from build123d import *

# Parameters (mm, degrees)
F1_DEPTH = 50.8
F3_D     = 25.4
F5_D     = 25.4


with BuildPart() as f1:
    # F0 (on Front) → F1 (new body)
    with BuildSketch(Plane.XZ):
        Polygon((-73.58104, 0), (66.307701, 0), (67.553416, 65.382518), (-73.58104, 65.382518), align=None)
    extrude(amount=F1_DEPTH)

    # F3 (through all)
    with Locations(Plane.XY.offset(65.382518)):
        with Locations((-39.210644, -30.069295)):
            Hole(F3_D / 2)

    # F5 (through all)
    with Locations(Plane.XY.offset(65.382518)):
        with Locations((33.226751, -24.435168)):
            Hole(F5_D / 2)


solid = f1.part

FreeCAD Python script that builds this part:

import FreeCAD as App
import Part
import Sketcher
Q = App.Units.Quantity


def add_polygon(sketch, points):
    """Adds a closed chain of lines whose ends are joined by coincident constraints."""
    first, n = sketch.GeometryCount, len(points)
    for a, b in zip(points, points[1:] + points[:1]):
        sketch.addGeometry(Part.LineSegment(App.Vector(*a, 0), App.Vector(*b, 0)), False)
    for i in range(n):
        sketch.addConstraint(Sketcher.Constraint("Coincident", first + i, 2, first + (i + 1) % n, 1))

doc = App.newDocument("Part")
body = doc.addObject("PartDesign::Body", "Body")

sketch1 = body.newObject("Sketcher::SketchObject", "Sketch")
sketch1.AttachmentSupport = (doc.getObject("XZ_Plane"), [""])
sketch1.MapMode = "FlatFace"
add_polygon(sketch1, [(-74, 0), (66, 0), (68, 65), (-74, 65)])
sketch1.addConstraint(Sketcher.Constraint("Horizontal", 0))
sketch1.addConstraint(Sketcher.Constraint("Horizontal", 2))
sketch1.addConstraint(Sketcher.Constraint("Vertical", 3))
sketch1.addConstraint(Sketcher.Constraint("PointOnObject", 0, 2, -1))
sketch1.addConstraint(Sketcher.Constraint("DistanceX", 0, 1, 0, 2, Q("139.888741 mm")))
sketch1.addConstraint(Sketcher.Constraint("DistanceY", 3, 2, 3, 1, Q("65.382518 mm")))
sketch1.addConstraint(Sketcher.Constraint("DistanceX", -1, 1, 0, 2, Q("66.307701 mm")))
sketch1.addConstraint(Sketcher.Constraint("DistanceX", 2, 2, 2, 1, Q("141.134456 mm")))
pad1 = body.newObject("PartDesign::Pad", "Pad")
pad1.Profile = sketch1
pad1.Length = Q("2 in")

sketch2 = body.newObject("Sketcher::SketchObject", "Sketch001")
sketch2.AttachmentSupport = (doc.getObject("XY_Plane"), [""])
sketch2.MapMode = "FlatFace"
sketch2.AttachmentOffset = App.Placement(App.Vector(0, 0, 65.382518), App.Rotation())
sketch2.addGeometry(Part.Circle(App.Vector(-39, -30, 0), App.Vector(0, 0, 1), 13), False)
sketch2.addConstraint(Sketcher.Constraint("Diameter", 0, Q("1 in")))
sketch2.addConstraint(Sketcher.Constraint("DistanceX", 0, 3, -1, 1, Q("39.210644 mm")))
sketch2.addConstraint(Sketcher.Constraint("DistanceY", 0, 3, -1, 1, Q("30.069295 mm")))
doc.recompute()
hole = body.newObject("PartDesign::Hole", "Hole")
hole.Profile = sketch2
hole.ThreadType = "None"
hole.Diameter = Q("1 in")
hole.DepthType = "ThroughAll"

sketch3 = body.newObject("Sketcher::SketchObject", "Sketch002")
sketch3.AttachmentSupport = (doc.getObject("XY_Plane"), [""])
sketch3.MapMode = "FlatFace"
sketch3.AttachmentOffset = App.Placement(App.Vector(0, 0, 65.382518), App.Rotation())
sketch3.addGeometry(Part.Circle(App.Vector(33, -24, 0), App.Vector(0, 0, 1), 13), False)
sketch3.addConstraint(Sketcher.Constraint("Diameter", 0, Q("1 in")))
sketch3.addConstraint(Sketcher.Constraint("DistanceX", -1, 1, 0, 3, Q("33.226751 mm")))
sketch3.addConstraint(Sketcher.Constraint("DistanceY", 0, 3, -1, 1, Q("24.435168 mm")))
doc.recompute()
hole2 = body.newObject("PartDesign::Hole", "Hole001")
hole2.Profile = sketch3
hole2.ThreadType = "None"
hole2.Diameter = Q("1 in")
hole2.DepthType = "ThroughAll"

doc.recompute()
